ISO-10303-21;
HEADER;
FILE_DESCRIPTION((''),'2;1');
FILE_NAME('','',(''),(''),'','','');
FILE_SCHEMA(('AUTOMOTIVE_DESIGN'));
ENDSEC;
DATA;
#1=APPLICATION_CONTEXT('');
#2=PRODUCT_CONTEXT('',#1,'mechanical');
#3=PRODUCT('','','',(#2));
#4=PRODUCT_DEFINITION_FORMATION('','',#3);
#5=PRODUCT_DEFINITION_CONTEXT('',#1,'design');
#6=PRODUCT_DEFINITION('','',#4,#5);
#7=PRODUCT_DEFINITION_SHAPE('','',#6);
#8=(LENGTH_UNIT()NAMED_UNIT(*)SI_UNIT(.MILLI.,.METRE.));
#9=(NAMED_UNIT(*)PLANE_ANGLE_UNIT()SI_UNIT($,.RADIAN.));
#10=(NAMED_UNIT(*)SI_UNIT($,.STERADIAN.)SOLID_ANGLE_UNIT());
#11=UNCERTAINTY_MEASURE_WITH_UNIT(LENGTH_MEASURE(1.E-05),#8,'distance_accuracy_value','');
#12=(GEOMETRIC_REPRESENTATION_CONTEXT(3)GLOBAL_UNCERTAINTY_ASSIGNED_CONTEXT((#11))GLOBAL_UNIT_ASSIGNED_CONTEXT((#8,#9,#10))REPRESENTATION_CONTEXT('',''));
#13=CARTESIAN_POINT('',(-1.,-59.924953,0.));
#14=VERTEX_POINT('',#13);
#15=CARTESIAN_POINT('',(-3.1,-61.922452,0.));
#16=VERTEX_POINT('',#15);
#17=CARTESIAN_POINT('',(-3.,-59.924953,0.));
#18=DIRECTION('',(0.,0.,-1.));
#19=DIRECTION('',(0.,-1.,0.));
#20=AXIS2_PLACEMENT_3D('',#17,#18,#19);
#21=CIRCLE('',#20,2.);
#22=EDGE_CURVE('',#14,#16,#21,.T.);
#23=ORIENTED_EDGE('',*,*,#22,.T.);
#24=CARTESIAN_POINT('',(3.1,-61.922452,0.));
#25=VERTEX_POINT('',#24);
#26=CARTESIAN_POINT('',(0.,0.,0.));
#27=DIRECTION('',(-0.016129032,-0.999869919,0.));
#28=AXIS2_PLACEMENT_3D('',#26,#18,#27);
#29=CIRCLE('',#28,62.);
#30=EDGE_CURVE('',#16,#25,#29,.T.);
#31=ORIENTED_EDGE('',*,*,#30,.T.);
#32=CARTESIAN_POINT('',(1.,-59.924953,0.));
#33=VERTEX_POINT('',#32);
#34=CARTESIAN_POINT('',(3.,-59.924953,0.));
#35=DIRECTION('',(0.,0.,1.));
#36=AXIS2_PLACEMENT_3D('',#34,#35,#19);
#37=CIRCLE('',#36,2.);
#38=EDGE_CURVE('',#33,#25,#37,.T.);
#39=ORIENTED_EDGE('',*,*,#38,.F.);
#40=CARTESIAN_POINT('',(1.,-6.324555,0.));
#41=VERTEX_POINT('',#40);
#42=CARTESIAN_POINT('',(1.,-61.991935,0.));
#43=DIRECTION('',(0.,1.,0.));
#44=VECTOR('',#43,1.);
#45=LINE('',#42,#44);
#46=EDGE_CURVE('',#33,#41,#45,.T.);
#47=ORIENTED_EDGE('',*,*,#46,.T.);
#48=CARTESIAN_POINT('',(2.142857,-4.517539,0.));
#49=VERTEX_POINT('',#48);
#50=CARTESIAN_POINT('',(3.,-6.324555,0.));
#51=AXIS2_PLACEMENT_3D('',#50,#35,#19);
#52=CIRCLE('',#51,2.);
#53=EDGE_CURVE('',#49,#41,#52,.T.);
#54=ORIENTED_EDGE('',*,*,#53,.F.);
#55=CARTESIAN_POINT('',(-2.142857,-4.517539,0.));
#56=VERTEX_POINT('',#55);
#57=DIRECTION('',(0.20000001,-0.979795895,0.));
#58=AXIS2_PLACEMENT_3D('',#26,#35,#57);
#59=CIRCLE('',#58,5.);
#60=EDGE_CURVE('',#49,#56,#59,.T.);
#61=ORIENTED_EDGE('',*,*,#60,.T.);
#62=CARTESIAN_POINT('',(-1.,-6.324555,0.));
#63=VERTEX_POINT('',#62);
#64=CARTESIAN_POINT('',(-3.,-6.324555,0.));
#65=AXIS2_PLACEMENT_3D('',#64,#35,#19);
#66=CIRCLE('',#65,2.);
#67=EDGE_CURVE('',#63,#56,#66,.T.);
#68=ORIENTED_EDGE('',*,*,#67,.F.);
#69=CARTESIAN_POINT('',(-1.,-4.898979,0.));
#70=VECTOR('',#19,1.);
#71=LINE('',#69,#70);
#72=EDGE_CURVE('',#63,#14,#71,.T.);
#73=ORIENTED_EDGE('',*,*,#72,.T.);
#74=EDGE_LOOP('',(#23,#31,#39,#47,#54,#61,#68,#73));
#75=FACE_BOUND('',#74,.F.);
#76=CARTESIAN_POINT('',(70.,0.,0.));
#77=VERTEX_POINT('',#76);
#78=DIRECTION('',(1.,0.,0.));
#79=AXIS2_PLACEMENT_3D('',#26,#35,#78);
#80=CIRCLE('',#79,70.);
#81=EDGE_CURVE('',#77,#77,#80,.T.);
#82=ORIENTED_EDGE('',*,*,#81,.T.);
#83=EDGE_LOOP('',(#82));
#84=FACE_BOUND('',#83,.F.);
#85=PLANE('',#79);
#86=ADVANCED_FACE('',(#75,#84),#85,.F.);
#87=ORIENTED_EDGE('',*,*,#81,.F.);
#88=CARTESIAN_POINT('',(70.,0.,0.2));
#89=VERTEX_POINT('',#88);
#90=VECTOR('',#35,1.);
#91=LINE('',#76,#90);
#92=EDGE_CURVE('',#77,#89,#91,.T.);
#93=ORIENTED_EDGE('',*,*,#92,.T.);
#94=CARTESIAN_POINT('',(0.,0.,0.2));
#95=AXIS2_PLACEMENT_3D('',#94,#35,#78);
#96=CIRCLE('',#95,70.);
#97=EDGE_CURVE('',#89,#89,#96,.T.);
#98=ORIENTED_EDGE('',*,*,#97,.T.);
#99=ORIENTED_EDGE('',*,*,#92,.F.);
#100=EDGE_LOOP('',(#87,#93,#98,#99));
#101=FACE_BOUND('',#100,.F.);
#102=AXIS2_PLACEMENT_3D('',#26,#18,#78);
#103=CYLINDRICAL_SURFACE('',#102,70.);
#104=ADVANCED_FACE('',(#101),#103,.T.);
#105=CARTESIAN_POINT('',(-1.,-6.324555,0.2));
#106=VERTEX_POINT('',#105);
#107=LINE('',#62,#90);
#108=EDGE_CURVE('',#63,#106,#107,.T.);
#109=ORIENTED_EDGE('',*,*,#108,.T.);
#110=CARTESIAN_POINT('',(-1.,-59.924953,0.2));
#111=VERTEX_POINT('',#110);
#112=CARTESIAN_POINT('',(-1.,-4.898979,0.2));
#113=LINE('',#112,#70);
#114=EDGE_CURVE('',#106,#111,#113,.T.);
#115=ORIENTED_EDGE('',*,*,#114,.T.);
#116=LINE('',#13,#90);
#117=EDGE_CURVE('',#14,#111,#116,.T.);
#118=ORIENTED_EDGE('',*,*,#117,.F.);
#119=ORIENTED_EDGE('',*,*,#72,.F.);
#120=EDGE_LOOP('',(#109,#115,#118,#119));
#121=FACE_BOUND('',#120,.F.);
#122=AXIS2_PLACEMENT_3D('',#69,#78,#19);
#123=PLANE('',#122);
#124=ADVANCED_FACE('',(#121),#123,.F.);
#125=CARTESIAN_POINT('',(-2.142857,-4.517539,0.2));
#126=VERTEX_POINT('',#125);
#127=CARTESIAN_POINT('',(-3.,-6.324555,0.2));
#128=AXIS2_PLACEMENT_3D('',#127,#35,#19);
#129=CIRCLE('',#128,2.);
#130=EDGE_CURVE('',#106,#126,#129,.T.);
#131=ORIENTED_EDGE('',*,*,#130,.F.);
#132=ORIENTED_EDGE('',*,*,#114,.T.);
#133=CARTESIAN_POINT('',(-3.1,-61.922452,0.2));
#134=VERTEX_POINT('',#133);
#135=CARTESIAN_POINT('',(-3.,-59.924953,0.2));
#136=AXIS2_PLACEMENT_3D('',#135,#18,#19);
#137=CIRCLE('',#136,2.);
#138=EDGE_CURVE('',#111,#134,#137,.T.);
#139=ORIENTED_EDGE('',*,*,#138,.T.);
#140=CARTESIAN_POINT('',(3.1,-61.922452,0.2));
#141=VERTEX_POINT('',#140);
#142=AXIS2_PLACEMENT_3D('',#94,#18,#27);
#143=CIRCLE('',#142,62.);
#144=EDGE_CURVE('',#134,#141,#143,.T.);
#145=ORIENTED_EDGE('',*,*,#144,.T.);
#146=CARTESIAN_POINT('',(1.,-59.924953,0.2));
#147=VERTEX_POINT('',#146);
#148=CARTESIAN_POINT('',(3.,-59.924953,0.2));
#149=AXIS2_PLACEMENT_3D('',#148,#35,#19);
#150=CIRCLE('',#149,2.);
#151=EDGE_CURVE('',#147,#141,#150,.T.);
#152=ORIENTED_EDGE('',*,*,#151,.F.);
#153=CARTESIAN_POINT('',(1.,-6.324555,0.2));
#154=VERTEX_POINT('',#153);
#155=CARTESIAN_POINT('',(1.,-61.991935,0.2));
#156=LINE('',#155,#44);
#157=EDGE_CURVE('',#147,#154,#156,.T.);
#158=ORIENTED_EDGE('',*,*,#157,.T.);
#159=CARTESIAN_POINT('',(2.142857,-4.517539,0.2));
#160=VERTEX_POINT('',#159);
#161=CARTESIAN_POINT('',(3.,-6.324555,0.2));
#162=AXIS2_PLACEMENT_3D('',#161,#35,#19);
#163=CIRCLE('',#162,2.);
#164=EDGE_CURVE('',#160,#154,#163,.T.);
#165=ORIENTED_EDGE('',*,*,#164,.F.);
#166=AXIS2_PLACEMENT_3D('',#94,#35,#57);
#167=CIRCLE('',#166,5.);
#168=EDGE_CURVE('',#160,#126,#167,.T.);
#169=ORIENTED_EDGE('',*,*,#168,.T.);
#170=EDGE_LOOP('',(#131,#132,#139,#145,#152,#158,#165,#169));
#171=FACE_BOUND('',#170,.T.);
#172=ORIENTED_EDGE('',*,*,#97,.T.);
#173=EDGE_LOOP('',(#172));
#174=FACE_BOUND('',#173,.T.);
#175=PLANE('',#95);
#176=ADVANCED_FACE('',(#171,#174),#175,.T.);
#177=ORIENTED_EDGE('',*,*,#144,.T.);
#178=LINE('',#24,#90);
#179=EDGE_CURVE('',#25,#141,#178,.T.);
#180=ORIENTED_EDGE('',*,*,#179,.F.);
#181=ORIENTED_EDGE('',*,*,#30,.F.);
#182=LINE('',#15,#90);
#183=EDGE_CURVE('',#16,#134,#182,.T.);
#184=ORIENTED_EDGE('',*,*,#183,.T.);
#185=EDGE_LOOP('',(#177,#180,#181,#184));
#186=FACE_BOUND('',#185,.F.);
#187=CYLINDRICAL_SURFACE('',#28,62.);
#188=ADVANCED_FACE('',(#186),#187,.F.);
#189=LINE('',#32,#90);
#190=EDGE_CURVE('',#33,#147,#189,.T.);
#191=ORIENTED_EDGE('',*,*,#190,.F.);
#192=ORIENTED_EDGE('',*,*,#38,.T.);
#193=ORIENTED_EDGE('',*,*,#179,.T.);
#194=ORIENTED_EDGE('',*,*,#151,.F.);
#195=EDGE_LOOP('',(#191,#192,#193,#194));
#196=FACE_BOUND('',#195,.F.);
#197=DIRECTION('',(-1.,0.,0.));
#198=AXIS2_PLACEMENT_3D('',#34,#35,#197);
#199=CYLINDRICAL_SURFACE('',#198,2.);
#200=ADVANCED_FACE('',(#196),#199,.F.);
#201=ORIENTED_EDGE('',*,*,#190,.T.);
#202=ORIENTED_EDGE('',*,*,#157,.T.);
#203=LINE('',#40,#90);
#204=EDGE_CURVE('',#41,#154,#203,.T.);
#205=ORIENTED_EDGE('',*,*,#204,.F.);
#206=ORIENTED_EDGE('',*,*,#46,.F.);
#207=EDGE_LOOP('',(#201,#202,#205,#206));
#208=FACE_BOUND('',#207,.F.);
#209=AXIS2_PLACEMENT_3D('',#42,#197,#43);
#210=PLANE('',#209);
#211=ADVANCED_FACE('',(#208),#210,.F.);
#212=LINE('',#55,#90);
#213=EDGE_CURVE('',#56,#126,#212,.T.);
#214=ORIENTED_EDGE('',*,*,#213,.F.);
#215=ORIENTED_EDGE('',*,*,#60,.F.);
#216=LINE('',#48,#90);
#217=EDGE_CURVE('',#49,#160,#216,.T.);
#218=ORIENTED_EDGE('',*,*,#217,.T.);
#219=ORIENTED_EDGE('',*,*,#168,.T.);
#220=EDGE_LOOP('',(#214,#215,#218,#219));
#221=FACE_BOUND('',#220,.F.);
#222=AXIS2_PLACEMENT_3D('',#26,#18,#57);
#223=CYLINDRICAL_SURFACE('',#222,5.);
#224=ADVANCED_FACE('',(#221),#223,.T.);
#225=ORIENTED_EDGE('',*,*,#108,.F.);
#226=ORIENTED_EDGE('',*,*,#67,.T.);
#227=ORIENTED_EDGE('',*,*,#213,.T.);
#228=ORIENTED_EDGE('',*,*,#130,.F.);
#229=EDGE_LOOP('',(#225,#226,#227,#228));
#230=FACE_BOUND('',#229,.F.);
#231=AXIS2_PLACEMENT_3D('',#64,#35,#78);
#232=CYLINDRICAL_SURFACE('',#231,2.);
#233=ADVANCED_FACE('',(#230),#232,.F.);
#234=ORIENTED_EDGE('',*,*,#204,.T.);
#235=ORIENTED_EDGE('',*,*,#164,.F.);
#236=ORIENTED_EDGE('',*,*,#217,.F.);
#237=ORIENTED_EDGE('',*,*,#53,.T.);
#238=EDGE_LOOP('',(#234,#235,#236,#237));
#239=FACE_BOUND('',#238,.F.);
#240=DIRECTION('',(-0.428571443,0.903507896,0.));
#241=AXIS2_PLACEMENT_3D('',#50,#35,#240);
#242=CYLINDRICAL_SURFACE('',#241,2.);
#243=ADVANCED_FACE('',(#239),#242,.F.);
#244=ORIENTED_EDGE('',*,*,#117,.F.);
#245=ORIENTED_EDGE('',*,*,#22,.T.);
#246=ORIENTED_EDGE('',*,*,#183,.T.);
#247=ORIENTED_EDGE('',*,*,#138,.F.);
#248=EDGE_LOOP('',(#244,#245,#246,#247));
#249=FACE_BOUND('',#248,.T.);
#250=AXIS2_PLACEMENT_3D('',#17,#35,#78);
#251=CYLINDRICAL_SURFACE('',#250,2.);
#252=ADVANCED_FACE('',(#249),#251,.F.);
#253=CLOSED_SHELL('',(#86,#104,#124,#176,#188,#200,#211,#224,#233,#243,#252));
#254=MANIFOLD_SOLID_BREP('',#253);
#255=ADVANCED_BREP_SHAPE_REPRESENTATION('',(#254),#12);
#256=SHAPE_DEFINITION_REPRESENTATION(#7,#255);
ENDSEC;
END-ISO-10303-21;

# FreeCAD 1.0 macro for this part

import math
import FreeCAD as App
import Part
import Sketcher

V = App.Vector


def edges_at(feature, points):
    """Names of the edges that pass closest to the given points."""
    edges = feature.Shape.Edges
    near = lambda p: min(range(len(edges)), key=lambda i: edges[i].distToShape(Part.Vertex(*p))[0])
    return sorted({f"Edge{near(p) + 1}" for p in points})

doc = App.newDocument("Part")
body = doc.addObject("PartDesign::Body", "Body")

sketch1 = doc.addObject("Sketcher::SketchObject", "Sketch")
body.addObject(sketch1)
sketch1.AttachmentSupport = (doc.XY_Plane, [""])
sketch1.MapMode = "FlatFace"
sketch1.addGeometry(Part.Circle(V(0, 0, 0), V(0, 0, 1), 70), False)
sketch1.addGeometry(Part.LineSegment(V(-1, -4.898979, 0), V(-1, -61.991935, 0)), False)
sketch1.addGeometry(Part.ArcOfCircle(Part.Circle(V(0, 0, 0), V(0, 0, 1), 62), math.radians(-89.075834), math.radians(269.075834)), False)
sketch1.addGeometry(Part.LineSegment(V(1, -61.991935, 0), V(1, -4.898979, 0)), False)
sketch1.addGeometry(Part.ArcOfCircle(Part.Circle(V(0, 0, 0), V(0, 0, 1), 5), math.radians(-78.46304), math.radians(258.46304)), False)
sketch1.addConstraint(Sketcher.Constraint("Coincident", 1, 2, 2, 2))
sketch1.addConstraint(Sketcher.Constraint("Coincident", 2, 1, 3, 1))
sketch1.addConstraint(Sketcher.Constraint("Coincident", 3, 2, 4, 1))
sketch1.addConstraint(Sketcher.Constraint("Coincident", 4, 2, 1, 1))
sketch1.addConstraint(Sketcher.Constraint("Vertical", 1))
sketch1.addConstraint(Sketcher.Constraint("Vertical", 3))
sketch1.addConstraint(Sketcher.Constraint("Coincident", 0, 3, -1, 1))
sketch1.addConstraint(Sketcher.Constraint("Coincident", 2, 3, -1, 1))
sketch1.addConstraint(Sketcher.Constraint("Coincident", 4, 3, -1, 1))
sketch1.addConstraint(Sketcher.Constraint("Horizontal", 1, 2, 2, 1))
sketch1.addConstraint(Sketcher.Constraint("Diameter", 0, 140.0))
sketch1.addConstraint(Sketcher.Constraint("Radius", 2, 62.0))
sketch1.addConstraint(Sketcher.Constraint("Radius", 4, 5.0))
sketch1.addConstraint(Sketcher.Constraint("DistanceX", 1, 2, -1, 1, 1.0))
pad1 = doc.addObject("PartDesign::Pad", "Pad")
body.addObject(pad1)
pad1.Profile = sketch1
pad1.Length = 0.2
doc.recompute()

fillet = doc.addObject("PartDesign::Fillet", "Fillet")
body.addObject(fillet)
fillet.Base = (pad1, edges_at(pad1, [
    (1, -4.899, 0.1),
    (-1, -4.899, 0.1),
    (1, -61.992, 0.1),
    (-1, -61.992, 0.1),
]))
fillet.Radius = 2

doc.recompute()
